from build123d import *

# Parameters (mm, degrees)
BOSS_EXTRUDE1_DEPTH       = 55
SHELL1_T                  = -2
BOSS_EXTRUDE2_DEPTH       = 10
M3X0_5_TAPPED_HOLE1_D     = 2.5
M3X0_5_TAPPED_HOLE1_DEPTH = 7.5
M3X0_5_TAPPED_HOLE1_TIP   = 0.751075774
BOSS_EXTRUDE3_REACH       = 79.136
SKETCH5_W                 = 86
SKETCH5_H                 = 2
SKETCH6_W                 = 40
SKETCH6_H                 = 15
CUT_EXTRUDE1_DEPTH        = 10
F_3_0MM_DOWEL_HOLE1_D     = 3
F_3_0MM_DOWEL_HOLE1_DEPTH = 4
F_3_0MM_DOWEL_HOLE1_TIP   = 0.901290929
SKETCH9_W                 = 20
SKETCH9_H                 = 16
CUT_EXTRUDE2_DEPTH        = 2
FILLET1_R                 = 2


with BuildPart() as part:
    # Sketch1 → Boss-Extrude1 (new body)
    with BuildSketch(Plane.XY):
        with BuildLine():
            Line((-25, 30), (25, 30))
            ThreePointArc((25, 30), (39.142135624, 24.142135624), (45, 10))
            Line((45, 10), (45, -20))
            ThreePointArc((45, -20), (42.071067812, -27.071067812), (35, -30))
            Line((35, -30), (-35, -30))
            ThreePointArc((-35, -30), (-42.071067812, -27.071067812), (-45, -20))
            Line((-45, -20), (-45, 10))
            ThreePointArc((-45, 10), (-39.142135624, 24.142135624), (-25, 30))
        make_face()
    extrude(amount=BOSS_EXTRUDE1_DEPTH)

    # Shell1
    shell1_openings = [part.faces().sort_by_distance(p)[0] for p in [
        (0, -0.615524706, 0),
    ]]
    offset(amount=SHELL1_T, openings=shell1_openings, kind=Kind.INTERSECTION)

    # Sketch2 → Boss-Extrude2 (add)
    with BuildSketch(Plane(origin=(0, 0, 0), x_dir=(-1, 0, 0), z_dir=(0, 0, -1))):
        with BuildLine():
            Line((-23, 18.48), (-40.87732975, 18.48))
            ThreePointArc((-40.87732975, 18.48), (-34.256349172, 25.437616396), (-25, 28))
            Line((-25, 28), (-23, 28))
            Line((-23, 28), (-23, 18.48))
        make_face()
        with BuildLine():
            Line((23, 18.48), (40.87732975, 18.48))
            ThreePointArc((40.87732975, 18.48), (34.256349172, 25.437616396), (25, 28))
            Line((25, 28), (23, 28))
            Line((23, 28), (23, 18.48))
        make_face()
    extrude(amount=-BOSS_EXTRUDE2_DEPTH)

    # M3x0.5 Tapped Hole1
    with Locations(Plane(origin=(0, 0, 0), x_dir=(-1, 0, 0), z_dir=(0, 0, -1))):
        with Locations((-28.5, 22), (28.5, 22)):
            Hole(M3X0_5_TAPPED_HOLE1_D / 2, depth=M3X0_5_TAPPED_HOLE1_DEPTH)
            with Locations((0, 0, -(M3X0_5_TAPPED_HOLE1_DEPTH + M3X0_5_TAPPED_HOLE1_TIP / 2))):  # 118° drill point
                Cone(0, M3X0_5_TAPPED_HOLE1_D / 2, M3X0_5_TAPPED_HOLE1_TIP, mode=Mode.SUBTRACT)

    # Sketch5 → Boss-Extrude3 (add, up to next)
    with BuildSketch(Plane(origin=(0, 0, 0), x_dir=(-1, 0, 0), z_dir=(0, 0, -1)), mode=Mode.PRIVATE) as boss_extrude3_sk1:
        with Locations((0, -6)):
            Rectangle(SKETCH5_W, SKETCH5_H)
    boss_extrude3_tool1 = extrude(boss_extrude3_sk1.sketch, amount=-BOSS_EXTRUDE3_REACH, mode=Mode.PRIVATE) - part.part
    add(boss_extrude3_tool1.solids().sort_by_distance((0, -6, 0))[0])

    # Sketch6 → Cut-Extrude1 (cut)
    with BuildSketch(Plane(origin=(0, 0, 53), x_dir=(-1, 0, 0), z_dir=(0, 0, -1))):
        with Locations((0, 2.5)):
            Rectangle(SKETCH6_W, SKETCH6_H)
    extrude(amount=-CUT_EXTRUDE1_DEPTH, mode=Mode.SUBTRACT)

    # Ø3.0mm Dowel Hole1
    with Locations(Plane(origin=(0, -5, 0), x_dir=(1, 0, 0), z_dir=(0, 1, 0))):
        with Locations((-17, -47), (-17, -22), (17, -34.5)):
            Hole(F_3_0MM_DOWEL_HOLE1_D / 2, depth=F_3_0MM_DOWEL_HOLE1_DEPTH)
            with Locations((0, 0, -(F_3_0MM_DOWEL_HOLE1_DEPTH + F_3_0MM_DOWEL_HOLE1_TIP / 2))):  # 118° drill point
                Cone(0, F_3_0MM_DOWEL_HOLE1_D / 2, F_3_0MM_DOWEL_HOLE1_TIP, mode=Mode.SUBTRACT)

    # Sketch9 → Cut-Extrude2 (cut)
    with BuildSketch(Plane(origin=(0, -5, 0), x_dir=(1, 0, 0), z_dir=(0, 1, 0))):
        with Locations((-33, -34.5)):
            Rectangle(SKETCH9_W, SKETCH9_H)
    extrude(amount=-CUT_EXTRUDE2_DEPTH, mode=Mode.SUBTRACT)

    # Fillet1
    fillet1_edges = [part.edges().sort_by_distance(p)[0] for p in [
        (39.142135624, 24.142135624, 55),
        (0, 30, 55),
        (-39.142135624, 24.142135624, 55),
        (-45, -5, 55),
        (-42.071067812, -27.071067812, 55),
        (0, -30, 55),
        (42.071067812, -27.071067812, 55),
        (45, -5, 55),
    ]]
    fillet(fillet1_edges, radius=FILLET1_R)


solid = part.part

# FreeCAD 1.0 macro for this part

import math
import FreeCAD as App
import Part
import Sketcher
from FreeCAD import Vector


def edges_at(feature, points):
    """Names of the edges that pass closest to the given points."""
    edges = feature.Shape.Edges
    near = lambda p: min(range(len(edges)), key=lambda i: edges[i].distToShape(Part.Vertex(*p))[0])
    return sorted({f"Edge{near(p) + 1}" for p in points})


def faces_at(feature, points):
    """Names of the faces that lie closest to the given points."""
    faces = feature.Shape.Faces
    near = lambda p: min(range(len(faces)), key=lambda i: faces[i].distToShape(Part.Vertex(*p))[0])
    return sorted({f"Face{near(p) + 1}" for p in points})

doc = App.newDocument("Part")
body = doc.addObject("PartDesign::Body", "Body")

# Sketch on XY plane
sketch1 = doc.addObject("Sketcher::SketchObject", "Sketch")
body.addObject(sketch1)
sketch1.AttachmentSupport = (doc.XY_Plane, [""])
sketch1.MapMode = "FlatFace"
sketch1.addGeometry(Part.LineSegment(Vector(25, 30, 0), Vector(-25, 30, 0)), False)
sketch1.addGeometry(Part.ArcOfCircle(Part.Circle(Vector(-25, 10, 0), Vector(0, 0, 1), 20), math.radians(90), math.radians(180)), False)
sketch1.addGeometry(Part.LineSegment(Vector(-45, 10, 0), Vector(-45, -20, 0)), False)
sketch1.addGeometry(Part.ArcOfCircle(Part.Circle(Vector(-35, -20, 0), Vector(0, 0, 1), 10), math.radians(180), math.radians(270)), False)
sketch1.addGeometry(Part.LineSegment(Vector(-35, -30, 0), Vector(35, -30, 0)), False)
sketch1.addGeometry(Part.ArcOfCircle(Part.Circle(Vector(35, -20, 0), Vector(0, 0, 1), 10), math.radians(-90), math.radians(0)), False)
sketch1.addGeometry(Part.LineSegment(Vector(45, -20, 0), Vector(45, 10, 0)), False)
sketch1.addGeometry(Part.ArcOfCircle(Part.Circle(Vector(25, 10, 0), Vector(0, 0, 1), 20), math.radians(0), math.radians(90)), False)
sketch1.addConstraint(Sketcher.Constraint("Tangent", 0, 2, 1, 1))
sketch1.addConstraint(Sketcher.Constraint("Tangent", 1, 2, 2, 1))
sketch1.addConstraint(Sketcher.Constraint("Tangent", 2, 2, 3, 1))
sketch1.addConstraint(Sketcher.Constraint("Tangent", 3, 2, 4, 1))
sketch1.addConstraint(Sketcher.Constraint("Tangent", 4, 2, 5, 1))
sketch1.addConstraint(Sketcher.Constraint("Tangent", 5, 2, 6, 1))
sketch1.addConstraint(Sketcher.Constraint("Tangent", 6, 2, 7, 1))
sketch1.addConstraint(Sketcher.Constraint("Tangent", 7, 2, 0, 1))
sketch1.addConstraint(Sketcher.Constraint("Horizontal", 0))
sketch1.addConstraint(Sketcher.Constraint("Vertical", 2))
sketch1.addConstraint(Sketcher.Constraint("Horizontal", 4))
sketch1.addConstraint(Sketcher.Constraint("Vertical", 6))
sketch1.addConstraint(Sketcher.Constraint("Equal", 3, 5))
sketch1.addConstraint(Sketcher.Constraint("Equal", 1, 7))
sketch1.addConstraint(Sketcher.Constraint("Radius", 1, 20.0))
sketch1.addConstraint(Sketcher.Constraint("Radius", 3, 10.0))
sketch1.addConstraint(Sketcher.Constraint("DistanceX", 0, 2, 0, 1, 50.0))
sketch1.addConstraint(Sketcher.Constraint("DistanceY", 2, 2, 2, 1, 30.0))
sketch1.addConstraint(Sketcher.Constraint("DistanceX", 1, 3, -1, 1, 25.0))
sketch1.addConstraint(Sketcher.Constraint("DistanceY", -1, 1, 1, 3, 10.0))
pad1 = doc.addObject("PartDesign::Pad", "Pad")
body.addObject(pad1)
pad1.Profile = sketch1
pad1.Length = 55
doc.recompute()

thickness = doc.addObject("PartDesign::Thickness", "Thickness")
body.addObject(thickness)
thickness.Base = (pad1, faces_at(pad1, [(0, 0, 0)]))
thickness.Value = 2
thickness.Reversed = True
thickness.Join = "Intersection"

# Sketch on XY plane
sketch2 = doc.addObject("Sketcher::SketchObject", "Sketch001")
body.addObject(sketch2)
sketch2.AttachmentSupport = (doc.XY_Plane, [""])
sketch2.MapMode = "FlatFace"
sketch2.addGeometry(Part.LineSegment(Vector(40.87733, 18.48, 0), Vector(23, 18.48, 0)), False)
sketch2.addGeometry(Part.LineSegment(Vector(23, 18.48, 0), Vector(23, 28, 0)), False)
sketch2.addGeometry(Part.LineSegment(Vector(23, 28, 0), Vector(25, 28, 0)), False)
sketch2.addGeometry(Part.ArcOfCircle(Part.Circle(Vector(25, 10, 0), Vector(0, 0, 1), 18), math.radians(28.106445), math.radians(90)), False)
sketch2.addGeometry(Part.LineSegment(Vector(-23, 18.48, 0), Vector(-40.87733, 18.48, 0)), False)
sketch2.addGeometry(Part.ArcOfCircle(Part.Circle(Vector(-25, 10, 0), Vector(0, 0, 1), 18), math.radians(90), math.radians(151.893555)), False)
sketch2.addGeometry(Part.LineSegment(Vector(-25, 28, 0), Vector(-23, 28, 0)), False)
sketch2.addGeometry(Part.LineSegment(Vector(-23, 28, 0), Vector(-23, 18.48, 0)), False)
sketch2.addConstraint(Sketcher.Constraint("Coincident", 0, 2, 1, 1))
sketch2.addConstraint(Sketcher.Constraint("Coincident", 1, 2, 2, 1))
sketch2.addConstraint(Sketcher.Constraint("Tangent", 2, 2, 3, 2))
sketch2.addConstraint(Sketcher.Constraint("Coincident", 3, 1, 0, 1))
sketch2.addConstraint(Sketcher.Constraint("Coincident", 4, 2, 5, 2))
sketch2.addConstraint(Sketcher.Constraint("Tangent", 5, 1, 6, 1))
sketch2.addConstraint(Sketcher.Constraint("Coincident", 6, 2, 7, 1))
sketch2.addConstraint(Sketcher.Constraint("Coincident", 7, 2, 4, 1))
sketch2.addConstraint(Sketcher.Constraint("Horizontal", 0))
sketch2.addConstraint(Sketcher.Constraint("Vertical", 1))
sketch2.addConstraint(Sketcher.Constraint("Horizontal", 2))
sketch2.addConstraint(Sketcher.Constraint("Horizontal", 4))
sketch2.addConstraint(Sketcher.Constraint("Horizontal", 6))
sketch2.addConstraint(Sketcher.Constraint("Vertical", 7))
sketch2.addConstraint(Sketcher.Constraint("Equal", 3, 5))
sketch2.addConstraint(Sketcher.Constraint("Symmetric", 3, 3, 5, 3, -2))
sketch2.addConstraint(Sketcher.Constraint("Symmetric", 0, 2, 7, 2, -2))
sketch2.addConstraint(Sketcher.Constraint("Radius", 3, 18.0))
sketch2.addConstraint(Sketcher.Constraint("DistanceX", 2, 1, 2, 2, 2.0))
sketch2.addConstraint(Sketcher.Constraint("DistanceX", -1, 1, 3, 3, 25.0))
sketch2.addConstraint(Sketcher.Constraint("DistanceY", -1, 1, 3, 3, 10.0))
sketch2.addConstraint(Sketcher.Constraint("DistanceY", 1, 1, 1, 2, 9.52))
pad2 = doc.addObject("PartDesign::Pad", "Pad001")
body.addObject(pad2)
pad2.Profile = sketch2
pad2.Length = 10

# Sketch on XY plane
sketch3 = doc.addObject("Sketcher::SketchObject", "Sketch002")
body.addObject(sketch3)
sketch3.AttachmentSupport = (doc.XY_Plane, [""])
sketch3.MapMode = "FlatFace"
sketch3.addGeometry(Part.Circle(Vector(28.5, 22, 0), Vector(0, 0, 1), 1.25), False)
sketch3.addGeometry(Part.Circle(Vector(-28.5, 22, 0), Vector(0, 0, 1), 1.25), False)
sketch3.addConstraint(Sketcher.Constraint("Equal", 0, 1))
sketch3.addConstraint(Sketcher.Constraint("Symmetric", 0, 3, 1, 3, -2))
sketch3.addConstraint(Sketcher.Constraint("Diameter", 0, 2.5))
sketch3.addConstraint(Sketcher.Constraint("DistanceY", -1, 1, 0, 3, 22.0))
sketch3.addConstraint(Sketcher.Constraint("DistanceX", 1, 3, 0, 3, 57.0))
doc.recompute()
hole = doc.addObject("PartDesign::Hole", "Hole")
body.addObject(hole)
hole.Profile = sketch3
hole.ThreadType = "None"
hole.Diameter = 2.5
hole.DepthType = "Dimension"
hole.Depth = 7.5
hole.DrillPoint = "Angled"
hole.DrillPointAngle = 118
hole.Reversed = True

# Sketch on XY plane
sketch4 = doc.addObject("Sketcher::SketchObject", "Sketch003")
body.addObject(sketch4)
sketch4.AttachmentSupport = (doc.XY_Plane, [""])
sketch4.MapMode = "FlatFace"
sketch4.addGeometry(Part.LineSegment(Vector(43, -5, 0), Vector(43, -7, 0)), False)
sketch4.addGeometry(Part.LineSegment(Vector(43, -7, 0), Vector(-43, -7, 0)), False)
sketch4.addGeometry(Part.LineSegment(Vector(-43, -7, 0), Vector(-43, -5, 0)), False)
sketch4.addGeometry(Part.LineSegment(Vector(-43, -5, 0), Vector(43, -5, 0)), False)
sketch4.addConstraint(Sketcher.Constraint("Coincident", 0, 2, 1, 1))
sketch4.addConstraint(Sketcher.Constraint("Coincident", 1, 2, 2, 1))
sketch4.addConstraint(Sketcher.Constraint("Coincident", 2, 2, 3, 1))
sketch4.addConstraint(Sketcher.Constraint("Coincident", 3, 2, 0, 1))
sketch4.addConstraint(Sketcher.Constraint("Vertical", 0))
sketch4.addConstraint(Sketcher.Constraint("Horizontal", 1))
sketch4.addConstraint(Sketcher.Constraint("Vertical", 2))
sketch4.addConstraint(Sketcher.Constraint("Horizontal", 3))
sketch4.addConstraint(Sketcher.Constraint("DistanceX", 1, 2, 1, 1, 86.0))
sketch4.addConstraint(Sketcher.Constraint("DistanceY", 0, 2, 0, 1, 2.0))
sketch4.addConstraint(Sketcher.Constraint("DistanceX", -1, 1, 0, 2, 43.0))
sketch4.addConstraint(Sketcher.Constraint("DistanceY", 0, 2, -1, 1, 7.0))
pad3 = doc.addObject("PartDesign::Pad", "Pad002")
body.addObject(pad3)
pad3.Profile = sketch4
pad3.Type = "UpToFirst"

# Sketch on XY plane
sketch5 = doc.addObject("Sketcher::SketchObject", "Sketch004")
body.addObject(sketch5)
sketch5.AttachmentSupport = (doc.XY_Plane, [""])
sketch5.MapMode = "FlatFace"
sketch5.AttachmentOffset = App.Placement(Vector(0, 0, 53), App.Rotation())
sketch5.addGeometry(Part.LineSegment(Vector(20, 10, 0), Vector(20, -5, 0)), False)
sketch5.addGeometry(Part.LineSegment(Vector(20, -5, 0), Vector(-20, -5, 0)), False)
sketch5.addGeometry(Part.LineSegment(Vector(-20, -5, 0), Vector(-20, 10, 0)), False)
sketch5.addGeometry(Part.LineSegment(Vector(-20, 10, 0), Vector(20, 10, 0)), False)
sketch5.addConstraint(Sketcher.Constraint("Coincident", 0, 2, 1, 1))
sketch5.addConstraint(Sketcher.Constraint("Coincident", 1, 2, 2, 1))
sketch5.addConstraint(Sketcher.Constraint("Coincident", 2, 2, 3, 1))
sketch5.addConstraint(Sketcher.Constraint("Coincident", 3, 2, 0, 1))
sketch5.addConstraint(Sketcher.Constraint("Vertical", 0))
sketch5.addConstraint(Sketcher.Constraint("Horizontal", 1))
sketch5.addConstraint(Sketcher.Constraint("Vertical", 2))
sketch5.addConstraint(Sketcher.Constraint("Horizontal", 3))
sketch5.addConstraint(Sketcher.Constraint("DistanceX", 1, 2, 1, 1, 40.0))
sketch5.addConstraint(Sketcher.Constraint("DistanceY", 0, 2, 0, 1, 15.0))
sketch5.addConstraint(Sketcher.Constraint("DistanceX", -1, 1, 0, 2, 20.0))
sketch5.addConstraint(Sketcher.Constraint("DistanceY", 0, 2, -1, 1, 5.0))
pocket1 = doc.addObject("PartDesign::Pocket", "Pocket")
body.addObject(pocket1)
pocket1.Profile = sketch5
pocket1.Length = 10
pocket1.Reversed = True

# Sketch on XZ plane
sketch6 = doc.addObject("Sketcher::SketchObject", "Sketch005")
body.addObject(sketch6)
sketch6.AttachmentSupport = (doc.XZ_Plane, [""])
sketch6.MapMode = "FlatFace"
sketch6.AttachmentOffset = App.Placement(Vector(0, 0, 5), App.Rotation())
sketch6.addGeometry(Part.Circle(Vector(-17, 47, 0), Vector(0, 0, 1), 1.5), False)
sketch6.addGeometry(Part.Circle(Vector(-17, 22, 0), Vector(0, 0, 1), 1.5), False)
sketch6.addGeometry(Part.Circle(Vector(17, 34.5, 0), Vector(0, 0, 1), 1.5), False)
sketch6.addConstraint(Sketcher.Constraint("Equal", 0, 1))
sketch6.addConstraint(Sketcher.Constraint("Equal", 1, 2))
sketch6.addConstraint(Sketcher.Constraint("Vertical", 0, 3, 1, 3))
sketch6.addConstraint(Sketcher.Constraint("Diameter", 0, 3.0))
sketch6.addConstraint(Sketcher.Constraint("DistanceX", 0, 3, -1, 1, 17.0))
sketch6.addConstraint(Sketcher.Constraint("DistanceY", -1, 1, 0, 3, 47.0))
sketch6.addConstraint(Sketcher.Constraint("DistanceY", -1, 1, 1, 3, 22.0))
sketch6.addConstraint(Sketcher.Constraint("DistanceX", -1, 1, 2, 3, 17.0))
sketch6.addConstraint(Sketcher.Constraint("DistanceY", -1, 1, 2, 3, 34.5))
doc.recompute()
hole2 = doc.addObject("PartDesign::Hole", "Hole001")
body.addObject(hole2)
hole2.Profile = sketch6
hole2.ThreadType = "None"
hole2.Diameter = 3
hole2.DepthType = "Dimension"
hole2.Depth = 4
hole2.DrillPoint = "Angled"
hole2.DrillPointAngle = 118
hole2.Reversed = True

# Sketch on XZ plane
sketch7 = doc.addObject("Sketcher::SketchObject", "Sketch006")
body.addObject(sketch7)
sketch7.AttachmentSupport = (doc.XZ_Plane, [""])
sketch7.MapMode = "FlatFace"
sketch7.AttachmentOffset = App.Placement(Vector(0, 0, 5), App.Rotation())
sketch7.addGeometry(Part.LineSegment(Vector(-43, 26.5, 0), Vector(-43, 42.5, 0)), False)
sketch7.addGeometry(Part.LineSegment(Vector(-43, 42.5, 0), Vector(-23, 42.5, 0)), False)
sketch7.addGeometry(Part.LineSegment(Vector(-23, 42.5, 0), Vector(-23, 26.5, 0)), False)
sketch7.addGeometry(Part.LineSegment(Vector(-23, 26.5, 0), Vector(-43, 26.5, 0)), False)
sketch7.addConstraint(Sketcher.Constraint("Coincident", 0, 2, 1, 1))
sketch7.addConstraint(Sketcher.Constraint("Coincident", 1, 2, 2, 1))
sketch7.addConstraint(Sketcher.Constraint("Coincident", 2, 2, 3, 1))
sketch7.addConstraint(Sketcher.Constraint("Coincident", 3, 2, 0, 1))
sketch7.addConstraint(Sketcher.Constraint("Vertical", 0))
sketch7.addConstraint(Sketcher.Constraint("Horizontal", 1))
sketch7.addConstraint(Sketcher.Constraint("Vertical", 2))
sketch7.addConstraint(Sketcher.Constraint("Horizontal", 3))
sketch7.addConstraint(Sketcher.Constraint("DistanceX", 1, 1, 1, 2, 20.0))
sketch7.addConstraint(Sketcher.Constraint("DistanceY", 0, 1, 0, 2, 16.0))
sketch7.addConstraint(Sketcher.Constraint("DistanceX", 0, 2, -1, 1, 43.0))
sketch7.addConstraint(Sketcher.Constraint("DistanceY", -1, 1, 0, 2, 42.5))
pocket2 = doc.addObject("PartDesign::Pocket", "Pocket001")
body.addObject(pocket2)
pocket2.Profile = sketch7
pocket2.Length = 2
pocket2.Reversed = True
doc.recompute()

fillet = doc.addObject("PartDesign::Fillet", "Fillet")
body.addObject(fillet)
fillet.Base = (pocket2, edges_at(pocket2, [
    (39.142, 24.142, 55),
    (0, 30, 55),
    (-39.142, 24.142, 55),
    (-45, -5, 55),
    (-42.071, -27.071, 55),
    (0, -30, 55),
    (42.071, -27.071, 55),
    (45, -5, 55),
]))
fillet.Radius = 2

doc.recompute()
